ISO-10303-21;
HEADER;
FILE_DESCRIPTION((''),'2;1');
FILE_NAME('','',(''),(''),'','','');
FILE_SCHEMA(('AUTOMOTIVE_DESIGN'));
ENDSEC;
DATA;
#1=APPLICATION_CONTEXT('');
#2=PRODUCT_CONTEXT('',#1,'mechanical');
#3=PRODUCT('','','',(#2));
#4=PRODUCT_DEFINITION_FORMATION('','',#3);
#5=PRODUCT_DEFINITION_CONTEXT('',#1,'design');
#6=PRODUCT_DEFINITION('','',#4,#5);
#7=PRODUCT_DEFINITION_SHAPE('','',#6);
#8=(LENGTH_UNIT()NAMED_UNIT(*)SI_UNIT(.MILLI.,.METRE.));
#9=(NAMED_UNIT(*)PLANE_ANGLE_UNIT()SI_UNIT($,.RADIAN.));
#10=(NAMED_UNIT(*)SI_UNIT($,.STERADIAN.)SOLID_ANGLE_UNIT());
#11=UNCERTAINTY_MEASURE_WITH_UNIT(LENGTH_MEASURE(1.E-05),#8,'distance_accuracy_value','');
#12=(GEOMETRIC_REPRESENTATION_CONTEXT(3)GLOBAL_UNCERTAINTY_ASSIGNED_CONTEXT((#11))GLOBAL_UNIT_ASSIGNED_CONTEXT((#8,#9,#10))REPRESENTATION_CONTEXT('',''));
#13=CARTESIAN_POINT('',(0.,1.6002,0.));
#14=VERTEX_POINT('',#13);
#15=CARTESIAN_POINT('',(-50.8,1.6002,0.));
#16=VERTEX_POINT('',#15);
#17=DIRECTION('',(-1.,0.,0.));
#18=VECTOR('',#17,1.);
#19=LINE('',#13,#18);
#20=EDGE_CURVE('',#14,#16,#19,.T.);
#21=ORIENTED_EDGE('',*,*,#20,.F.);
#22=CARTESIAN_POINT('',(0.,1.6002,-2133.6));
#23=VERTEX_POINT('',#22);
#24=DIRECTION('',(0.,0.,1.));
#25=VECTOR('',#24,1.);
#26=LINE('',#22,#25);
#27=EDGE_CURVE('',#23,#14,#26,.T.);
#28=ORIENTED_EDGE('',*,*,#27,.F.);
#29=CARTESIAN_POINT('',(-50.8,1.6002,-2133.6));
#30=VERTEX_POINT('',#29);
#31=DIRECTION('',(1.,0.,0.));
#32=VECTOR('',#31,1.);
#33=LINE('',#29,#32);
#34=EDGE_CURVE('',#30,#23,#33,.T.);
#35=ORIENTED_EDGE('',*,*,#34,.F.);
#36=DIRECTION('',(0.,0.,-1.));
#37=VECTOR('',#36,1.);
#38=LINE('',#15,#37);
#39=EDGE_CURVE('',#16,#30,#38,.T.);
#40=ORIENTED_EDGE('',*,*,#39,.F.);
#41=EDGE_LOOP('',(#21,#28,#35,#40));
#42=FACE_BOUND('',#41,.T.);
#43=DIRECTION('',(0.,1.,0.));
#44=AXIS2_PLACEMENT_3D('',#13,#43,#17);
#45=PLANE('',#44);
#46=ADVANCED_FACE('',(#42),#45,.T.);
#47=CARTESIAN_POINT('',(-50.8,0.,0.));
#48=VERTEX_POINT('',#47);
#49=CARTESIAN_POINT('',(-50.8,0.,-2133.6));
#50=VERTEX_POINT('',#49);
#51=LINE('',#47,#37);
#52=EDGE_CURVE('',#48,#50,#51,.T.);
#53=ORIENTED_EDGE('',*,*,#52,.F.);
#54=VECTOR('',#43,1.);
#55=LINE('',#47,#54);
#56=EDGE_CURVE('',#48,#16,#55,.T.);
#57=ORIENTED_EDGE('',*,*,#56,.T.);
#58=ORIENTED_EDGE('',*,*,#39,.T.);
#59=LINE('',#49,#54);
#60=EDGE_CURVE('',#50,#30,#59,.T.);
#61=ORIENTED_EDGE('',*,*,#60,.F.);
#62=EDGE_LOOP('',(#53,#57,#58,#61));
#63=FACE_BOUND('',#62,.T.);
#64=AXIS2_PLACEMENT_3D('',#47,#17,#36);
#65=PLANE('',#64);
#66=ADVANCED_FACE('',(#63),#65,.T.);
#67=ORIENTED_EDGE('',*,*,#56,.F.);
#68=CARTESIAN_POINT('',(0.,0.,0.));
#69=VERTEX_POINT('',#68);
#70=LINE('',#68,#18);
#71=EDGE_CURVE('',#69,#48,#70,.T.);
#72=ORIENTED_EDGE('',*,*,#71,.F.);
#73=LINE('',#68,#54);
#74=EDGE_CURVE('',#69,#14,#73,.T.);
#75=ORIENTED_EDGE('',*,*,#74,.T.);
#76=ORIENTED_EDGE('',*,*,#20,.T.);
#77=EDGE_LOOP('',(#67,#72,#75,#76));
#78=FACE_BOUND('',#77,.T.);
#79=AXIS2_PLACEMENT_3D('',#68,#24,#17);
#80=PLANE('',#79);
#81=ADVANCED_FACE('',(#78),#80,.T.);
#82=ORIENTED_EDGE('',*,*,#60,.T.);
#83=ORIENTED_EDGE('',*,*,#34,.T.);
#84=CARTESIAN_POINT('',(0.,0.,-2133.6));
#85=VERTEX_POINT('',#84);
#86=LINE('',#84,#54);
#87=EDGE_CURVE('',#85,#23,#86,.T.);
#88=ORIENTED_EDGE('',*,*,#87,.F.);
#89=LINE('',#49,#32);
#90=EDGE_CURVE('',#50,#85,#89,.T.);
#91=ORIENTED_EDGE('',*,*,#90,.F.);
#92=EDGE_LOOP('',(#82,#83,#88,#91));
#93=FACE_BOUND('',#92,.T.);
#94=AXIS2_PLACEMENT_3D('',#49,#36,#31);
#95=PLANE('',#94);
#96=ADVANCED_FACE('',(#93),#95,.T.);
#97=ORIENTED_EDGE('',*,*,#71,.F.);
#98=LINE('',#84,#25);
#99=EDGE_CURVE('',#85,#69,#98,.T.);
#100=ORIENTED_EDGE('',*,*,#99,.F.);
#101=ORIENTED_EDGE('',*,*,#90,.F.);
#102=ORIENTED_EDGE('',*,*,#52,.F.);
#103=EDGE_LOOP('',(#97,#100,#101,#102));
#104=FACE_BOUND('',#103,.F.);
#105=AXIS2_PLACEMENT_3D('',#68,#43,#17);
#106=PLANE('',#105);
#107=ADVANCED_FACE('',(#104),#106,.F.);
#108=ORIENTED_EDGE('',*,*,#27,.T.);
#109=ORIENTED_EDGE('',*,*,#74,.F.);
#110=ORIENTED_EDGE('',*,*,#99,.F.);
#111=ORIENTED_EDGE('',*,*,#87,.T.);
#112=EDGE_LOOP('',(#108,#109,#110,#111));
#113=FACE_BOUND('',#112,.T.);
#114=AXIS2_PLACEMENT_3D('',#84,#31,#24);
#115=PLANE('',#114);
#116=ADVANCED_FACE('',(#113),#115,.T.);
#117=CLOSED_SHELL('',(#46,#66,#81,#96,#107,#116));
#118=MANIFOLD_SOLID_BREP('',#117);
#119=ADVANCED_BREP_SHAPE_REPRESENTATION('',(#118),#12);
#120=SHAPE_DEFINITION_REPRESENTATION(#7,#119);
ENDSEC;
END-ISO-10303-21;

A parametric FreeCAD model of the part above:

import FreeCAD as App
import Part
import Sketcher
from FreeCAD import Vector
Q = App.Units.Quantity


def add_polygon(sketch, points):
    """Adds a closed chain of lines whose ends are joined by coincident constraints."""
    first, n = sketch.GeometryCount, len(points)
    for a, b in zip(points, points[1:] + points[:1]):
        sketch.addGeometry(Part.LineSegment(App.Vector(*a, 0), App.Vector(*b, 0)), False)
    for i in range(n):
        sketch.addConstraint(Sketcher.Constraint("Coincident", first + i, 2, first + (i + 1) % n, 1))

doc = App.newDocument("Part")
body = doc.addObject("PartDesign::Body", "Body")

# Sketch on XZ plane
sketch1 = body.newObject("Sketcher::SketchObject", "Sketch")
sketch1.AttachmentSupport = (doc.getObject("XZ_Plane"), [""])
sketch1.MapMode = "FlatFace"
add_polygon(sketch1, [(-51, 0), (0, 0), (0, -2134), (-51, -2134)])  # lines 0-3
sketch1.addConstraint([
    Sketcher.Constraint("Horizontal", 0),
    Sketcher.Constraint("Vertical", 1),
    Sketcher.Constraint("Horizontal", 2),
    Sketcher.Constraint("Vertical", 3),
    Sketcher.Constraint("Coincident", 0, 2, -1, 1),
    Sketcher.Constraint("DistanceX", 0, 1, 0, 2, Q("2 in")),
    Sketcher.Constraint("DistanceY", 1, 2, 1, 1, Q("84 in")),
])
pad1 = body.newObject("PartDesign::Pad", "Pad")
pad1.Profile = sketch1
pad1.Length = Q("0.063 in")
pad1.Reversed = True

doc.recompute()
